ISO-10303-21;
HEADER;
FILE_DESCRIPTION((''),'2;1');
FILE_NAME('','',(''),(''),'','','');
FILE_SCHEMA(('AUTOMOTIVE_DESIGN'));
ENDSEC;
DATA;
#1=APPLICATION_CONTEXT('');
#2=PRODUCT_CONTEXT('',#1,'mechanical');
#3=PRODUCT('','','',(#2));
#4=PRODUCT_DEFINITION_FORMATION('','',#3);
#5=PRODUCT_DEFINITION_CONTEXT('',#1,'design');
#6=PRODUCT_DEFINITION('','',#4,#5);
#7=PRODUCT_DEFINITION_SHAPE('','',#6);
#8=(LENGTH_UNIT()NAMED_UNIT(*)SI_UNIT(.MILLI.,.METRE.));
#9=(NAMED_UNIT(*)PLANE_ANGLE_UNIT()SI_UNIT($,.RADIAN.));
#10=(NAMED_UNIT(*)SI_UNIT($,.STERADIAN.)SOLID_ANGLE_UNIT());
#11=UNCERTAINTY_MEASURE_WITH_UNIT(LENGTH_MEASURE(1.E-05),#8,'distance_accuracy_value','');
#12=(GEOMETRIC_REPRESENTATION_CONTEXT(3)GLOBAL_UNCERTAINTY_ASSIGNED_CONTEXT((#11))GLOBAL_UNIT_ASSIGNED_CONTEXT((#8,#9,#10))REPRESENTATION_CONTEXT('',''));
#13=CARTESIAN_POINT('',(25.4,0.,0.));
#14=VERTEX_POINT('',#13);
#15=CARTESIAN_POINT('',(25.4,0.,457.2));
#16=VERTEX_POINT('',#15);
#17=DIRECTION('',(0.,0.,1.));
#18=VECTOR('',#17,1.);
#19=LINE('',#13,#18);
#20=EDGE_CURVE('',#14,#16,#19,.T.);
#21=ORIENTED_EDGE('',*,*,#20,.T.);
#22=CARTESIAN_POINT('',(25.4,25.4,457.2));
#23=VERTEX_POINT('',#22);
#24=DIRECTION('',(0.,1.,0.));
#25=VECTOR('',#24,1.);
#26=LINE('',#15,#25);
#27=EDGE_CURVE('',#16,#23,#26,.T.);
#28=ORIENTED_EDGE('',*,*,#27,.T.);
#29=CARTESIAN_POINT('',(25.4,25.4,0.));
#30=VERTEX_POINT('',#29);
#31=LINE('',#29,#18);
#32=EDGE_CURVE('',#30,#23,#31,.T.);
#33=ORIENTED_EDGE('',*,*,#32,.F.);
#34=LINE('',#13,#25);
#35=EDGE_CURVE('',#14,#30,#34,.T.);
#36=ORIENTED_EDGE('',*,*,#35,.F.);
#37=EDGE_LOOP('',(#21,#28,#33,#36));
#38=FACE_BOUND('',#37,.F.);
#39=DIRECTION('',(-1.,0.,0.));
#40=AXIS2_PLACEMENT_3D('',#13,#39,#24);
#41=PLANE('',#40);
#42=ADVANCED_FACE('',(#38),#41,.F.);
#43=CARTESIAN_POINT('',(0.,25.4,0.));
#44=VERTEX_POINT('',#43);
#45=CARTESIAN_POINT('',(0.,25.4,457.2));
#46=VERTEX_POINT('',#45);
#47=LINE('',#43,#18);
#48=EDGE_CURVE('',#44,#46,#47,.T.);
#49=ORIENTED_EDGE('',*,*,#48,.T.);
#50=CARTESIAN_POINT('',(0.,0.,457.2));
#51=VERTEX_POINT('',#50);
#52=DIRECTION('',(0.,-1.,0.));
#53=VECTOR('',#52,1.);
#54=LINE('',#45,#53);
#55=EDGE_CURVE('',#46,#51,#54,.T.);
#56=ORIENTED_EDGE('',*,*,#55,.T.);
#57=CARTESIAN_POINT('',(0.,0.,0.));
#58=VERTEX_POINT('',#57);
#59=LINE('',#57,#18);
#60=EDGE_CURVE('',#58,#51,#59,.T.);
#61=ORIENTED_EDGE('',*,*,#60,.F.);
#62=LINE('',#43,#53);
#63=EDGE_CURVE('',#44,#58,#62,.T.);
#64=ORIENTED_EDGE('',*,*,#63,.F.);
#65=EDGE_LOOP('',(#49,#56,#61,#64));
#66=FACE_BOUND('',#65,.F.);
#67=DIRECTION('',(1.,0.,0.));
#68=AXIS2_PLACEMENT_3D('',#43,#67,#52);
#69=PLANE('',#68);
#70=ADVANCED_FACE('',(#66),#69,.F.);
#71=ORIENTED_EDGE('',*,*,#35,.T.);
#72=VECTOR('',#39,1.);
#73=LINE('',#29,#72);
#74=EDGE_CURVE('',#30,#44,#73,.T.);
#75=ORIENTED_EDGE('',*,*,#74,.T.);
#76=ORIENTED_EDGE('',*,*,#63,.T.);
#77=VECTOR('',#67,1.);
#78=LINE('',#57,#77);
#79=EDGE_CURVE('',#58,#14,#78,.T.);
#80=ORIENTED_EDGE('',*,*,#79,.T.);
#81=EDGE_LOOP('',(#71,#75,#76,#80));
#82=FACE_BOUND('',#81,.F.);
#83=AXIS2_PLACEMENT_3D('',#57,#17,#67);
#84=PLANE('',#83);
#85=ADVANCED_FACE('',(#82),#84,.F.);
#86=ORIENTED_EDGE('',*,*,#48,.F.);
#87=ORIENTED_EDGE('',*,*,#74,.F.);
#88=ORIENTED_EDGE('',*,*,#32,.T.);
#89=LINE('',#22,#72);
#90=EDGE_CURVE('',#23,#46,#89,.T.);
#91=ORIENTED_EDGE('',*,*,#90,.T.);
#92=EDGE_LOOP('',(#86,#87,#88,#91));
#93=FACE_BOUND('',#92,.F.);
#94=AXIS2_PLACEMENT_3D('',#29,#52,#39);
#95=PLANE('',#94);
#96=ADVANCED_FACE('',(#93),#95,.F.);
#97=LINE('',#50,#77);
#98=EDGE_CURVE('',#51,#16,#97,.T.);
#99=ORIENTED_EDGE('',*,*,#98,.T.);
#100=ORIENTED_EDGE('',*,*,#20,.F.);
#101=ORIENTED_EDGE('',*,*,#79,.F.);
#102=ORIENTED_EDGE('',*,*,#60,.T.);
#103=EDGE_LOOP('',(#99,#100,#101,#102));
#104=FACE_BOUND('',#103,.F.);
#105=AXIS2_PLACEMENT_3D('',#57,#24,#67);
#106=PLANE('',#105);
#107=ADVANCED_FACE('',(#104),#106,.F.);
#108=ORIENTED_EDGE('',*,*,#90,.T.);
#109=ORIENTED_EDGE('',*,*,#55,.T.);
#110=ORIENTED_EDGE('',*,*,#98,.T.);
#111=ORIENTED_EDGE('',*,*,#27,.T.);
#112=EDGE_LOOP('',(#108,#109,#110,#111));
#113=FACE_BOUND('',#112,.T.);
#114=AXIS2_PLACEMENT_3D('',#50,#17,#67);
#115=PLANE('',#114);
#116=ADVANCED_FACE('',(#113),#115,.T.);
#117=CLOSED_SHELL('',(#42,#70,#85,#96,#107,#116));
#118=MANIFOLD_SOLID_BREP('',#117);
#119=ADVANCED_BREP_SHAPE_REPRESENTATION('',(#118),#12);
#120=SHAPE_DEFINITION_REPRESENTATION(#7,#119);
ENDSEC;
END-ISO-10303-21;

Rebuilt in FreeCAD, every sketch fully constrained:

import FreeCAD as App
import Part
import Sketcher

V = App.Vector
Q = App.Units.Quantity

doc = App.newDocument("Part")
params = doc.addObject("Spreadsheet::Sheet", "Params")
for row, (alias, value) in enumerate([
    ("sketch1_width", "1 in"),
    ("pad1_length", "18 in"),
], start=1):
    params.set(f"A{row}", alias)
    params.set(f"B{row}", "=" + value)
    params.setAlias(f"B{row}", alias)

body = doc.addObject("PartDesign::Body", "Body")

sketch1 = body.newObject("Sketcher::SketchObject", "Sketch")
sketch1.AttachmentSupport = (doc.getObject("XY_Plane"), [""])
sketch1.MapMode = "FlatFace"
sketch1.addGeometry(Part.LineSegment(V(0, 25, 0), V(0, 0, 0)), False)
sketch1.addGeometry(Part.LineSegment(V(0, 0, 0), V(25, 0, 0)), False)
sketch1.addGeometry(Part.LineSegment(V(25, 0, 0), V(25, 25, 0)), False)
sketch1.addGeometry(Part.LineSegment(V(25, 25, 0), V(0, 25, 0)), False)
sketch1.addConstraint(Sketcher.Constraint("Coincident", 0, 2, 1, 1))
sketch1.addConstraint(Sketcher.Constraint("Coincident", 1, 2, 2, 1))
sketch1.addConstraint(Sketcher.Constraint("Coincident", 2, 2, 3, 1))
sketch1.addConstraint(Sketcher.Constraint("Coincident", 3, 2, 0, 1))
sketch1.addConstraint(Sketcher.Constraint("Vertical", 0))
sketch1.addConstraint(Sketcher.Constraint("Horizontal", 1))
sketch1.addConstraint(Sketcher.Constraint("Vertical", 2))
sketch1.addConstraint(Sketcher.Constraint("Horizontal", 3))
sketch1.addConstraint(Sketcher.Constraint("Coincident", 0, 2, -1, 1))
sketch1.addConstraint(Sketcher.Constraint("Equal", 3, 0))
sketch1.addConstraint(Sketcher.Constraint("DistanceX", 1, 1, 1, 2, Q("1 in")))
sketch1.setExpression("Constraints[10]", "Params.sketch1_width")
pad1 = body.newObject("PartDesign::Pad", "Pad")
pad1.Profile = sketch1
pad1.setExpression("Length", "Params.pad1_length")

doc.recompute()
